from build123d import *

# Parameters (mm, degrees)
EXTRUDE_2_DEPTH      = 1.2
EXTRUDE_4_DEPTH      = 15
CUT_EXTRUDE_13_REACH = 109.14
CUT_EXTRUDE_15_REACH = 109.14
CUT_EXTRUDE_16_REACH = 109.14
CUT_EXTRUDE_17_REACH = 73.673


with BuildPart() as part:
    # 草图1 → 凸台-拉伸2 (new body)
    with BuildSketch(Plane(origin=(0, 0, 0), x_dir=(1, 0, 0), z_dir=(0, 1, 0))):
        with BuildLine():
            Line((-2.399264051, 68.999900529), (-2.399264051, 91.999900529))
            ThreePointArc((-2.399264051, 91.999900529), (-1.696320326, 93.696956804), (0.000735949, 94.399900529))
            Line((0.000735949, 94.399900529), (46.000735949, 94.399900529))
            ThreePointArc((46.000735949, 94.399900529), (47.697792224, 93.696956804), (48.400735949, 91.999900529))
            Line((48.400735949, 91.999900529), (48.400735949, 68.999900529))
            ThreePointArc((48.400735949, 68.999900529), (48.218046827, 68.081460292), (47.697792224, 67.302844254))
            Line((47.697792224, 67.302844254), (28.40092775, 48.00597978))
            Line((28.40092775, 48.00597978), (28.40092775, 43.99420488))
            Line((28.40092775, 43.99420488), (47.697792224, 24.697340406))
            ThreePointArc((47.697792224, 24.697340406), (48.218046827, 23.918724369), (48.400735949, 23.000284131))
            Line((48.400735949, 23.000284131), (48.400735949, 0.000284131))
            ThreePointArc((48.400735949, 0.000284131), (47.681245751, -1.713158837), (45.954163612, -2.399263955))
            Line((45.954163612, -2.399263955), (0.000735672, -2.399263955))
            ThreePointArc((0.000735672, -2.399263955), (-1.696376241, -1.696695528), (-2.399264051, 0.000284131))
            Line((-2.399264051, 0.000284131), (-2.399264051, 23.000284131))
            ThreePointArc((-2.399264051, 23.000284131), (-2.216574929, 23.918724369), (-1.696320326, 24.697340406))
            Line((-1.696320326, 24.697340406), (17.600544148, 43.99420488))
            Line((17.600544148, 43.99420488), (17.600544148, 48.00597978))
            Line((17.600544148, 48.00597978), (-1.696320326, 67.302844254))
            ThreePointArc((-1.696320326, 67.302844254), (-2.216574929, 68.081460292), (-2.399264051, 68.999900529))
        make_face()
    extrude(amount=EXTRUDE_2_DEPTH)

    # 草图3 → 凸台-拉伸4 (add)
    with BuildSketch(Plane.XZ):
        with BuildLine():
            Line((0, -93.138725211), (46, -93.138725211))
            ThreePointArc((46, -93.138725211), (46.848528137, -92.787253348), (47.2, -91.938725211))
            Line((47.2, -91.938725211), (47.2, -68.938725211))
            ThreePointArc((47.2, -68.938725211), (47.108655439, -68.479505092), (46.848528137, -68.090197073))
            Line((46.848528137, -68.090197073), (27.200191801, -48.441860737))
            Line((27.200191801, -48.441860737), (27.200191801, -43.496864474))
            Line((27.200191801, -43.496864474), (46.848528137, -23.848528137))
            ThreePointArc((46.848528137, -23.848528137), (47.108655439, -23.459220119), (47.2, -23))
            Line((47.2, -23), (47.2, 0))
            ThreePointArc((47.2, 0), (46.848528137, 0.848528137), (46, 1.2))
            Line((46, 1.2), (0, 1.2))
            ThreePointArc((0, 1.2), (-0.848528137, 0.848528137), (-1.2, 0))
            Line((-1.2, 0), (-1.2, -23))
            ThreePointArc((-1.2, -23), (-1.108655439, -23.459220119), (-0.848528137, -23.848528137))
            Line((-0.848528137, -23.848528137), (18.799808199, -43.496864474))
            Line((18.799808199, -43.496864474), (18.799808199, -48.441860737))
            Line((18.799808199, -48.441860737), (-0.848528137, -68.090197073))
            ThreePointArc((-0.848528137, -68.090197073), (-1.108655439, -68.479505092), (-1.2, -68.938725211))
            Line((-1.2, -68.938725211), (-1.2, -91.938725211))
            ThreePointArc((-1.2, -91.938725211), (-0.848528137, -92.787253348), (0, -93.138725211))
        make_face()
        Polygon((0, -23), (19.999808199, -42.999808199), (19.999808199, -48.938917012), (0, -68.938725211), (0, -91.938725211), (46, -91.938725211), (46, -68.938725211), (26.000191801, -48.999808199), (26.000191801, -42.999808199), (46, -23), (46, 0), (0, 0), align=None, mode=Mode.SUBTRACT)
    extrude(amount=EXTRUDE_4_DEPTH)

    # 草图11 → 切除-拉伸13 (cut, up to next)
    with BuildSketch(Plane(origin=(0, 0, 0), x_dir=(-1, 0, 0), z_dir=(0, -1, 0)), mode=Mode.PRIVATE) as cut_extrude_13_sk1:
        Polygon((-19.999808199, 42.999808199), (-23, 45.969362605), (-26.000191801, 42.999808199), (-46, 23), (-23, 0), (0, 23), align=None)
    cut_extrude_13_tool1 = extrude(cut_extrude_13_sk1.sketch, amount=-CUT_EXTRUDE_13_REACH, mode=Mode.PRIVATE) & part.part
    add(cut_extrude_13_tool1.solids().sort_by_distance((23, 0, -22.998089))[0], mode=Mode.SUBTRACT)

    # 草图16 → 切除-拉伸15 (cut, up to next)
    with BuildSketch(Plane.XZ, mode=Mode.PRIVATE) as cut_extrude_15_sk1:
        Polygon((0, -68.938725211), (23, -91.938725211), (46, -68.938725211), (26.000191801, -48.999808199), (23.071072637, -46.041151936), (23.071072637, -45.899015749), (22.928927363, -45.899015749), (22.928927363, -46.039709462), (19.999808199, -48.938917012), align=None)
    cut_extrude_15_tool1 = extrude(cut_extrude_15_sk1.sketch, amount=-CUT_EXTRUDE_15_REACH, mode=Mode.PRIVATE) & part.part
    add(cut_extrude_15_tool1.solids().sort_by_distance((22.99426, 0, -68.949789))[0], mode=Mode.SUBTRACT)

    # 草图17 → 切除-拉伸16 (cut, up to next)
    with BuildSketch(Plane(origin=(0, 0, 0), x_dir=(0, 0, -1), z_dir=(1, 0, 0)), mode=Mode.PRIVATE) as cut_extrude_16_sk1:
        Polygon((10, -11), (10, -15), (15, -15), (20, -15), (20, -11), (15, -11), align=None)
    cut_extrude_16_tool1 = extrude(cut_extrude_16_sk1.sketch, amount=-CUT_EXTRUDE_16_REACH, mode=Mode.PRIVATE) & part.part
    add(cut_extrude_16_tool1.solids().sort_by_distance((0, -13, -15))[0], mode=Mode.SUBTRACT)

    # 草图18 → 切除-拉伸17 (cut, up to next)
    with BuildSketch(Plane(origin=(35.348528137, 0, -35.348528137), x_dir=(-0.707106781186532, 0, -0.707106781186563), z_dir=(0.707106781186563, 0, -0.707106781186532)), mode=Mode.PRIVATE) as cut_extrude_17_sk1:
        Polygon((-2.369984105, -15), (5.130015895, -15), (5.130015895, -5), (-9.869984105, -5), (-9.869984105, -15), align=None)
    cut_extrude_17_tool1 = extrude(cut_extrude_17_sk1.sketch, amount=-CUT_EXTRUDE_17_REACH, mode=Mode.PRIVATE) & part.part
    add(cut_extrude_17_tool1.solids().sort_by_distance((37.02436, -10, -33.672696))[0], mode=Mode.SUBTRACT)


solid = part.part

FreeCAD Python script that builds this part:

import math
import FreeCAD as App
import Part
import Sketcher
from FreeCAD import Vector

doc = App.newDocument("Part")
params = doc.addObject("Spreadsheet::Sheet", "Params")
for row, (alias, value) in enumerate([
    ("sketch1_radius", "2.4 mm"),
    ("sketch1_width", "46 mm"),
    ("sketch1_height", "23 mm"),
    ("pad1_length", "1.2 mm"),
    ("sketch2_radius", "1.2 mm"),
    ("sketch2_width", "46 mm"),
    ("sketch2_height", "23 mm"),
    ("sketch2_height2", "6 mm"),
    ("pad2_length", "15 mm"),
    ("sketch5_width", "4 mm"),
    ("sketch5_height", "10 mm"),
    ("sketch6_width", "15 mm"),
    ("sketch6_height", "10 mm"),
], start=1):
    params.set(f"A{row}", alias)
    params.set(f"B{row}", "=" + value)
    params.setAlias(f"B{row}", alias)

body = doc.addObject("PartDesign::Body", "Body")

# Sketch on XZ plane
sketch1 = doc.addObject("Sketcher::SketchObject", "Sketch")
body.addObject(sketch1)
sketch1.AttachmentSupport = (doc.XZ_Plane, [""])
sketch1.MapMode = "FlatFace"
sketch1.addGeometry([
    Part.LineSegment(Vector(-2.4, -92, 0), Vector(-2.4, -69, 0)),  # 0
    Part.ArcOfCircle(Part.Circle(Vector(0, -69, 0), Vector(0, 0, 1), 2.4), math.radians(135), math.radians(180)),  # 1
    Part.LineSegment(Vector(-1.7, -67.3, 0), Vector(17.6, -48, 0)),  # 2
    Part.LineSegment(Vector(17.6, -48, 0), Vector(17.6, -44, 0)),  # 3
    Part.LineSegment(Vector(17.6, -44, 0), Vector(-1.7, -24.7, 0)),  # 4
    Part.ArcOfCircle(Part.Circle(Vector(0, -23, 0), Vector(0, 0, 1), 2.4), math.radians(180), math.radians(225)),  # 5
    Part.LineSegment(Vector(-2.4, -23, 0), Vector(-2.4, 0, 0)),  # 6
    Part.ArcOfCircle(Part.Circle(Vector(0, 0, 0), Vector(0, 0, 1), 2.4), math.radians(90), math.radians(180)),  # 7
    Part.LineSegment(Vector(0, 2.4, 0), Vector(46, 2.4, 0)),  # 8
    Part.ArcOfCircle(Part.Circle(Vector(46, 0, 0), Vector(0, 0, 1), 2.4), math.radians(0), math.radians(91)),  # 9
    Part.LineSegment(Vector(48.4, 0, 0), Vector(48.4, -23, 0)),  # 10
    Part.ArcOfCircle(Part.Circle(Vector(46, -23, 0), Vector(0, 0, 1), 2.4), math.radians(-45), math.radians(0)),  # 11
    Part.LineSegment(Vector(47.7, -24.7, 0), Vector(28.4, -44, 0)),  # 12
    Part.LineSegment(Vector(28.4, -44, 0), Vector(28.4, -48, 0)),  # 13
    Part.LineSegment(Vector(28.4, -48, 0), Vector(47.7, -67.3, 0)),  # 14
    Part.ArcOfCircle(Part.Circle(Vector(46, -69, 0), Vector(0, 0, 1), 2.4), math.radians(0), math.radians(45)),  # 15
    Part.LineSegment(Vector(48.4, -69, 0), Vector(48.4, -92, 0)),  # 16
    Part.ArcOfCircle(Part.Circle(Vector(46, -92, 0), Vector(0, 0, 1), 2.4), math.radians(-90), math.radians(0)),  # 17
    Part.LineSegment(Vector(46, -94.4, 0), Vector(0, -94.4, 0)),  # 18
    Part.ArcOfCircle(Part.Circle(Vector(0, -92, 0), Vector(0, 0, 1), 2.4), math.radians(180), math.radians(270)),  # 19
], False)
sketch1.addConstraint([
    Sketcher.Constraint("Tangent", 0, 2, 1, 2),
    Sketcher.Constraint("Tangent", 1, 1, 2, 1),
    Sketcher.Constraint("Coincident", 2, 2, 3, 1),
    Sketcher.Constraint("Coincident", 3, 2, 4, 1),
    Sketcher.Constraint("Tangent", 4, 2, 5, 2),
    Sketcher.Constraint("Tangent", 5, 1, 6, 1),
    Sketcher.Constraint("Coincident", 6, 2, 7, 2),
    Sketcher.Constraint("Coincident", 7, 1, 8, 1),
    Sketcher.Constraint("Coincident", 8, 2, 9, 2),
    Sketcher.Constraint("Tangent", 9, 1, 10, 1),
    Sketcher.Constraint("Tangent", 10, 2, 11, 2),
    Sketcher.Constraint("Tangent", 11, 1, 12, 1),
    Sketcher.Constraint("Coincident", 12, 2, 13, 1),
    Sketcher.Constraint("Coincident", 13, 2, 14, 1),
    Sketcher.Constraint("Tangent", 14, 2, 15, 2),
    Sketcher.Constraint("Tangent", 15, 1, 16, 1),
    Sketcher.Constraint("Tangent", 16, 2, 17, 2),
    Sketcher.Constraint("Tangent", 17, 1, 18, 1),
    Sketcher.Constraint("Tangent", 18, 2, 19, 2),
    Sketcher.Constraint("Tangent", 19, 1, 0, 1),
    Sketcher.Constraint("Vertical", 0),
    Sketcher.Constraint("Vertical", 3),
    Sketcher.Constraint("Vertical", 6),
    Sketcher.Constraint("Horizontal", 8),
    Sketcher.Constraint("Vertical", 10),
    Sketcher.Constraint("Vertical", 13),
    Sketcher.Constraint("Vertical", 16),
    Sketcher.Constraint("Horizontal", 18),
    Sketcher.Constraint("Coincident", 7, 3, -1, 1),
    Sketcher.Constraint("Equal", 1, 5),
    Sketcher.Constraint("Equal", 5, 9),
    Sketcher.Constraint("Equal", 9, 11),
    Sketcher.Constraint("Equal", 11, 15),
    Sketcher.Constraint("Equal", 15, 17),
    Sketcher.Constraint("Equal", 17, 19),
    Sketcher.Constraint("Perpendicular", 2, 4),
    Sketcher.Constraint("Perpendicular", 4, 12),
    Sketcher.Constraint("Perpendicular", 12, 14),
    Sketcher.Constraint("Horizontal", 5, 3, 11, 3),
    Sketcher.Constraint("Horizontal", 1, 3, 15, 3),
    Sketcher.Constraint("Horizontal", 9, 3, 6, 2),
    Sketcher.Constraint("Horizontal", 4, 2, 11, 1),
    Sketcher.Constraint("Horizontal", 3, 2, 12, 2),
    Sketcher.Constraint("Horizontal", 2, 2, 13, 2),
    Sketcher.Constraint("Vertical", 1, 3, 5, 3),
    Sketcher.Constraint("Vertical", 19, 3, 7, 1),
    Sketcher.Constraint("Equal", 0, 6),
    Sketcher.Constraint("Radius", 1, 2.4),
    Sketcher.Constraint("DistanceX", 18, 2, 18, 1, 46.0),
    Sketcher.Constraint("DistanceY", 0, 1, 0, 2, 23.0),
    Sketcher.Constraint("Radius", 7, 2.399264),
    Sketcher.Constraint("DistanceY", 1, 3, -1, 1, 68.999901),
    Sketcher.Constraint("DistanceX", 8, 1, 8, 2, 45.953428),
    Sketcher.Constraint("DistanceY", 3, 1, 3, 2, 4.011775),
])
sketch1.setExpression("Constraints[47]", "Params.sketch1_radius")
sketch1.setExpression("Constraints[48]", "Params.sketch1_width")
sketch1.setExpression("Constraints[49]", "Params.sketch1_height")
pad1 = doc.addObject("PartDesign::Pad", "Pad")
body.addObject(pad1)
pad1.Profile = sketch1
pad1.setExpression("Length", "Params.pad1_length")
pad1.Reversed = True

# Sketch on XZ plane
sketch2 = doc.addObject("Sketcher::SketchObject", "Sketch001")
body.addObject(sketch2)
sketch2.AttachmentSupport = (doc.XZ_Plane, [""])
sketch2.MapMode = "FlatFace"
sketch2.addGeometry([
    Part.LineSegment(Vector(0, -93.1, 0), Vector(46, -93.1, 0)),  # 0
    Part.ArcOfCircle(Part.Circle(Vector(46, -91.9, 0), Vector(0, 0, 1), 1.2), math.radians(-90), math.radians(0)),  # 1
    Part.LineSegment(Vector(47.2, -91.9, 0), Vector(47.2, -68.9, 0)),  # 2
    Part.ArcOfCircle(Part.Circle(Vector(46, -68.9, 0), Vector(0, 0, 1), 1.2), math.radians(0), math.radians(45)),  # 3
    Part.LineSegment(Vector(46.8, -68.1, 0), Vector(27.2, -48.4, 0)),  # 4
    Part.LineSegment(Vector(27.2, -48.4, 0), Vector(27.2, -43.5, 0)),  # 5
    Part.LineSegment(Vector(27.2, -43.5, 0), Vector(46.8, -23.8, 0)),  # 6
    Part.ArcOfCircle(Part.Circle(Vector(46, -23, 0), Vector(0, 0, 1), 1.2), math.radians(-45), math.radians(0)),  # 7
    Part.LineSegment(Vector(47.2, -23, 0), Vector(47.2, 0, 0)),  # 8
    Part.ArcOfCircle(Part.Circle(Vector(46, 0, 0), Vector(0, 0, 1), 1.2), math.radians(0), math.radians(90)),  # 9
    Part.LineSegment(Vector(46, 1.2, 0), Vector(0, 1.2, 0)),  # 10
    Part.ArcOfCircle(Part.Circle(Vector(0, 0, 0), Vector(0, 0, 1), 1.2), math.radians(90), math.radians(180)),  # 11
    Part.LineSegment(Vector(-1.2, 0, 0), Vector(-1.2, -23, 0)),  # 12
    Part.ArcOfCircle(Part.Circle(Vector(0, -23, 0), Vector(0, 0, 1), 1.2), math.radians(180), math.radians(225)),  # 13
    Part.LineSegment(Vector(-0.8, -23.8, 0), Vector(18.8, -43.5, 0)),  # 14
    Part.LineSegment(Vector(18.8, -43.5, 0), Vector(18.8, -48.4, 0)),  # 15
    Part.LineSegment(Vector(18.8, -48.4, 0), Vector(-0.8, -68.1, 0)),  # 16
    Part.ArcOfCircle(Part.Circle(Vector(0, -68.9, 0), Vector(0, 0, 1), 1.2), math.radians(135), math.radians(180)),  # 17
    Part.LineSegment(Vector(-1.2, -68.9, 0), Vector(-1.2, -91.9, 0)),  # 18
    Part.ArcOfCircle(Part.Circle(Vector(0, -91.9, 0), Vector(0, 0, 1), 1.2), math.radians(-180), math.radians(-90)),  # 19
    Part.LineSegment(Vector(20, -43, 0), Vector(0, -23, 0)),  # 20
    Part.LineSegment(Vector(0, -23, 0), Vector(0, 0, 0)),  # 21
    Part.LineSegment(Vector(0, 0, 0), Vector(46, 0, 0)),  # 22
    Part.LineSegment(Vector(46, 0, 0), Vector(46, -23, 0)),  # 23
    Part.LineSegment(Vector(46, -23, 0), Vector(26, -43, 0)),  # 24
    Part.LineSegment(Vector(26, -43, 0), Vector(26, -49, 0)),  # 25
    Part.LineSegment(Vector(26, -49, 0), Vector(46, -68.9, 0)),  # 26
    Part.LineSegment(Vector(46, -68.9, 0), Vector(46, -91.9, 0)),  # 27
    Part.LineSegment(Vector(46, -91.9, 0), Vector(0, -91.9, 0)),  # 28
    Part.LineSegment(Vector(0, -91.9, 0), Vector(0, -68.9, 0)),  # 29
    Part.LineSegment(Vector(0, -68.9, 0), Vector(20, -48.9, 0)),  # 30
    Part.LineSegment(Vector(20, -48.9, 0), Vector(20, -43, 0)),  # 31
], False)
sketch2.addConstraint([
    Sketcher.Constraint("Tangent", 0, 2, 1, 1),
    Sketcher.Constraint("Tangent", 1, 2, 2, 1),
    Sketcher.Constraint("Tangent", 2, 2, 3, 1),
    Sketcher.Constraint("Tangent", 3, 2, 4, 1),
    Sketcher.Constraint("Coincident", 4, 2, 5, 1),
    Sketcher.Constraint("Coincident", 5, 2, 6, 1),
    Sketcher.Constraint("Tangent", 6, 2, 7, 1),
    Sketcher.Constraint("Tangent", 7, 2, 8, 1),
    Sketcher.Constraint("Tangent", 8, 2, 9, 1),
    Sketcher.Constraint("Tangent", 9, 2, 10, 1),
    Sketcher.Constraint("Tangent", 10, 2, 11, 1),
    Sketcher.Constraint("Tangent", 11, 2, 12, 1),
    Sketcher.Constraint("Tangent", 12, 2, 13, 1),
    Sketcher.Constraint("Tangent", 13, 2, 14, 1),
    Sketcher.Constraint("Coincident", 14, 2, 15, 1),
    Sketcher.Constraint("Coincident", 15, 2, 16, 1),
    Sketcher.Constraint("Tangent", 16, 2, 17, 1),
    Sketcher.Constraint("Tangent", 17, 2, 18, 1),
    Sketcher.Constraint("Tangent", 18, 2, 19, 1),
    Sketcher.Constraint("Tangent", 19, 2, 0, 1),
    Sketcher.Constraint("Coincident", 20, 2, 21, 1),
    Sketcher.Constraint("Coincident", 21, 2, 22, 1),
    Sketcher.Constraint("Coincident", 22, 2, 23, 1),
    Sketcher.Constraint("Coincident", 23, 2, 24, 1),
    Sketcher.Constraint("Coincident", 24, 2, 25, 1),
    Sketcher.Constraint("Coincident", 25, 2, 26, 1),
    Sketcher.Constraint("Coincident", 26, 2, 27, 1),
    Sketcher.Constraint("Coincident", 27, 2, 28, 1),
    Sketcher.Constraint("Coincident", 28, 2, 29, 1),
    Sketcher.Constraint("Coincident", 29, 2, 30, 1),
    Sketcher.Constraint("Coincident", 30, 2, 31, 1),
    Sketcher.Constraint("Coincident", 31, 2, 20, 1),
    Sketcher.Constraint("Horizontal", 0),
    Sketcher.Constraint("Vertical", 2),
    Sketcher.Constraint("Vertical", 5),
    Sketcher.Constraint("Vertical", 8),
    Sketcher.Constraint("Horizontal", 10),
    Sketcher.Constraint("Vertical", 12),
    Sketcher.Constraint("Vertical", 15),
    Sketcher.Constraint("Vertical", 18),
    Sketcher.Constraint("Vertical", 21),
    Sketcher.Constraint("Horizontal", 22),
    Sketcher.Constraint("Vertical", 23),
    Sketcher.Constraint("Vertical", 25),
    Sketcher.Constraint("Vertical", 27),
    Sketcher.Constraint("Horizontal", 28),
    Sketcher.Constraint("Vertical", 29),
    Sketcher.Constraint("Vertical", 31),
    Sketcher.Constraint("Coincident", 11, 3, -1, 1),
    Sketcher.Constraint("Coincident", 21, 2, -1, 1),
    Sketcher.Constraint("Coincident", 20, 2, 13, 3),
    Sketcher.Constraint("Coincident", 22, 2, 9, 3),
    Sketcher.Constraint("Coincident", 23, 2, 7, 3),
    Sketcher.Constraint("Coincident", 26, 2, 3, 3),
    Sketcher.Constraint("Coincident", 27, 2, 1, 3),
    Sketcher.Constraint("Coincident", 28, 2, 19, 3),
    Sketcher.Constraint("Coincident", 29, 2, 17, 3),
    Sketcher.Constraint("Equal", 3, 7),
    Sketcher.Constraint("PointOnObject", 17, 3, -2),
    Sketcher.Constraint("Perpendicular", 4, 6),
    Sketcher.Constraint("Perpendicular", 6, 14),
    Sketcher.Constraint("Perpendicular", 14, 16),
    Sketcher.Constraint("Perpendicular", 16, 20),
    Sketcher.Constraint("Perpendicular", 20, 24),
    Sketcher.Constraint("Parallel", 24, 30),
    Sketcher.Constraint("Horizontal", 7, 3, 13, 3),
    Sketcher.Constraint("Horizontal", 3, 3, 17, 3),
    Sketcher.Constraint("Horizontal", 6, 2, 13, 2),
    Sketcher.Constraint("Horizontal", 5, 2, 14, 2),
    Sketcher.Constraint("Horizontal", 4, 2, 15, 2),
    Sketcher.Constraint("Horizontal", 24, 2, 31, 2),
    Sketcher.Constraint("Equal", 2, 8),
    Sketcher.Constraint("Radius", 1, 1.2),
    Sketcher.Constraint("DistanceX", 0, 1, 0, 2, 46.0),
    Sketcher.Constraint("DistanceY", 2, 1, 2, 2, 23.0),
    Sketcher.Constraint("DistanceY", 25, 2, 25, 1, 6.0),
    Sketcher.Constraint("DistanceX", 24, 2, 5, 2, 1.2),
    Sketcher.Constraint("Distance", 20, 28.284),
    Sketcher.Constraint("DistanceY", 31, 1, 31, 2, 5.939109),
])
sketch2.setExpression("Constraints[72]", "Params.sketch2_radius")
sketch2.setExpression("Constraints[73]", "Params.sketch2_width")
sketch2.setExpression("Constraints[74]", "Params.sketch2_height")
sketch2.setExpression("Constraints[75]", "Params.sketch2_height2")
pad2 = doc.addObject("PartDesign::Pad", "Pad001")
body.addObject(pad2)
pad2.Profile = sketch2
pad2.setExpression("Length", "Params.pad2_length")

# Sketch on XZ plane
sketch3 = doc.addObject("Sketcher::SketchObject", "Sketch002")
body.addObject(sketch3)
sketch3.AttachmentSupport = (doc.XZ_Plane, [""])
sketch3.MapMode = "FlatFace"
sketch3.addGeometry([
    Part.LineSegment(Vector(20, -43, 0), Vector(23, -46, 0)),  # 0
    Part.LineSegment(Vector(23, -46, 0), Vector(26, -43, 0)),  # 1
    Part.LineSegment(Vector(26, -43, 0), Vector(46, -23, 0)),  # 2
    Part.LineSegment(Vector(46, -23, 0), Vector(23, 0, 0)),  # 3
    Part.LineSegment(Vector(23, 0, 0), Vector(0, -23, 0)),  # 4
    Part.LineSegment(Vector(0, -23, 0), Vector(20, -43, 0)),  # 5
], False)
sketch3.addConstraint([
    Sketcher.Constraint("Coincident", 0, 2, 1, 1),
    Sketcher.Constraint("Coincident", 1, 2, 2, 1),
    Sketcher.Constraint("Coincident", 2, 2, 3, 1),
    Sketcher.Constraint("Coincident", 3, 2, 4, 1),
    Sketcher.Constraint("Coincident", 4, 2, 5, 1),
    Sketcher.Constraint("Coincident", 5, 2, 0, 1),
    Sketcher.Constraint("PointOnObject", 3, 2, -1),
    Sketcher.Constraint("PointOnObject", 4, 2, -2),
    Sketcher.Constraint("Perpendicular", 2, 3),
    Sketcher.Constraint("Perpendicular", 3, 4),
    Sketcher.Constraint("Perpendicular", 4, 5),
    Sketcher.Constraint("Horizontal", 2, 2, 4, 2),
    Sketcher.Constraint("Horizontal", 1, 2, 5, 2),
    Sketcher.Constraint("Vertical", 0, 2, 3, 2),
    Sketcher.Constraint("Equal", 0, 1),
    Sketcher.Constraint("DistanceX", -1, 1, 0, 2, 23.0),
    Sketcher.Constraint("Distance", 2, 28.284),
    Sketcher.Constraint("Distance", 0, 4.221304),
])
pocket1 = doc.addObject("PartDesign::Pocket", "Pocket")
body.addObject(pocket1)
pocket1.Profile = sketch3
pocket1.Type = "UpToFirst"

# Sketch on XZ plane
sketch4 = doc.addObject("Sketcher::SketchObject", "Sketch003")
body.addObject(sketch4)
sketch4.AttachmentSupport = (doc.XZ_Plane, [""])
sketch4.MapMode = "FlatFace"
sketch4.addGeometry([
    Part.LineSegment(Vector(0, -68.94, 0), Vector(23, -91.94, 0)),  # 0
    Part.LineSegment(Vector(23, -91.94, 0), Vector(46, -68.94, 0)),  # 1
    Part.LineSegment(Vector(46, -68.94, 0), Vector(26, -49, 0)),  # 2
    Part.LineSegment(Vector(26, -49, 0), Vector(23.07, -46.04, 0)),  # 3
    Part.LineSegment(Vector(23.07, -46.04, 0), Vector(23.07, -45.9, 0)),  # 4
    Part.LineSegment(Vector(23.07, -45.9, 0), Vector(22.93, -45.9, 0)),  # 5
    Part.LineSegment(Vector(22.93, -45.9, 0), Vector(22.93, -46.04, 0)),  # 6
    Part.LineSegment(Vector(22.93, -46.04, 0), Vector(20, -48.94, 0)),  # 7
    Part.LineSegment(Vector(20, -48.94, 0), Vector(0, -68.94, 0)),  # 8
], False)
sketch4.addConstraint([
    Sketcher.Constraint("Coincident", 0, 2, 1, 1),
    Sketcher.Constraint("Coincident", 1, 2, 2, 1),
    Sketcher.Constraint("Coincident", 2, 2, 3, 1),
    Sketcher.Constraint("Coincident", 3, 2, 4, 1),
    Sketcher.Constraint("Coincident", 4, 2, 5, 1),
    Sketcher.Constraint("Coincident", 5, 2, 6, 1),
    Sketcher.Constraint("Coincident", 6, 2, 7, 1),
    Sketcher.Constraint("Coincident", 7, 2, 8, 1),
    Sketcher.Constraint("Coincident", 8, 2, 0, 1),
    Sketcher.Constraint("Vertical", 4),
    Sketcher.Constraint("Horizontal", 5),
    Sketcher.Constraint("Vertical", 6),
    Sketcher.Constraint("PointOnObject", 8, 2, -2),
    Sketcher.Constraint("Perpendicular", 0, 1),
    Sketcher.Constraint("Parallel", 1, 8),
    Sketcher.Constraint("Horizontal", 1, 2, 8, 2),
    Sketcher.Constraint("Equal", 0, 1),
    Sketcher.Constraint("DistanceX", -1, 1, 0, 2, 23.0),
    Sketcher.Constraint("Distance", 8, 28.284),
    Sketcher.Constraint("DistanceY", 2, 2, 6, 2, 2.960099),
    Sketcher.Constraint("DistanceY", 7, 2, 5, 2, 3.039901),
    Sketcher.Constraint("Distance", 3, 4.163338),
    Sketcher.Constraint("DistanceX", 5, 2, 5, 1, 0.142145),
    Sketcher.Constraint("DistanceY", 4, 1, 4, 2, 0.142136),
    Sketcher.Constraint("DistanceY", 6, 2, 6, 1, 0.140694),
    Sketcher.Constraint("DistanceX", -1, 1, 2, 2, 26.000192),
    Sketcher.Constraint("DistanceY", 2, 2, -1, 1, 48.999808),
])
pocket2 = doc.addObject("PartDesign::Pocket", "Pocket001")
body.addObject(pocket2)
pocket2.Profile = sketch4
pocket2.Type = "UpToFirst"

# Sketch on YZ plane
sketch5 = doc.addObject("Sketcher::SketchObject", "Sketch004")
body.addObject(sketch5)
sketch5.AttachmentSupport = (doc.YZ_Plane, [""])
sketch5.MapMode = "FlatFace"
sketch5.addGeometry([
    Part.LineSegment(Vector(-11, -10, 0), Vector(-15, -10, 0)),
    Part.LineSegment(Vector(-15, -10, 0), Vector(-15, -20, 0)),
    Part.LineSegment(Vector(-15, -20, 0), Vector(-11, -20, 0)),
    Part.LineSegment(Vector(-11, -20, 0), Vector(-11, -10, 0)),
], False)
sketch5.addConstraint([
    Sketcher.Constraint("Coincident", 0, 2, 1, 1),
    Sketcher.Constraint("Coincident", 1, 2, 2, 1),
    Sketcher.Constraint("Coincident", 2, 2, 3, 1),
    Sketcher.Constraint("Coincident", 3, 2, 0, 1),
    Sketcher.Constraint("Horizontal", 0),
    Sketcher.Constraint("Vertical", 1),
    Sketcher.Constraint("Horizontal", 2),
    Sketcher.Constraint("Vertical", 3),
    Sketcher.Constraint("DistanceX", 0, 2, 0, 1, 4.0),
    Sketcher.Constraint("DistanceY", 1, 2, 1, 1, 10.0),
    Sketcher.Constraint("DistanceX", 0, 2, -1, 1, 15.0),
    Sketcher.Constraint("DistanceY", 0, 2, -1, 1, 10.0),
])
sketch5.setExpression("Constraints[8]", "Params.sketch5_width")
sketch5.setExpression("Constraints[9]", "Params.sketch5_height")
pocket3 = doc.addObject("PartDesign::Pocket", "Pocket002")
body.addObject(pocket3)
pocket3.Profile = sketch5
pocket3.Type = "UpToFirst"

# Sketch on an angled plane
sketch6 = doc.addObject("Sketcher::SketchObject", "Sketch005")
body.addObject(sketch6)
sketch6.Placement = App.Placement(Vector(35.348528, 0, -35.348528), App.Rotation(Vector(-0.707106781, 0, -0.707106781), Vector(0, 0.999999999, 0), Vector(0.707106781, 0, -0.707106781), "ZXY"))
sketch6.addGeometry([
    Part.LineSegment(Vector(5, -15, 0), Vector(5, -5, 0)),
    Part.LineSegment(Vector(5, -5, 0), Vector(-10, -5, 0)),
    Part.LineSegment(Vector(-10, -5, 0), Vector(-10, -15, 0)),
    Part.LineSegment(Vector(-10, -15, 0), Vector(5, -15, 0)),
], False)
sketch6.addConstraint([
    Sketcher.Constraint("Coincident", 0, 2, 1, 1),
    Sketcher.Constraint("Coincident", 1, 2, 2, 1),
    Sketcher.Constraint("Coincident", 2, 2, 3, 1),
    Sketcher.Constraint("Coincident", 3, 2, 0, 1),
    Sketcher.Constraint("Vertical", 0),
    Sketcher.Constraint("Horizontal", 1),
    Sketcher.Constraint("Vertical", 2),
    Sketcher.Constraint("Horizontal", 3),
    Sketcher.Constraint("DistanceX", 1, 2, 1, 1, 15.0),
    Sketcher.Constraint("DistanceY", 0, 1, 0, 2, 10.0),
    Sketcher.Constraint("DistanceY", 0, 2, -1, 1, 5.0),
    Sketcher.Constraint("DistanceX", -1, 1, 0, 2, 5.130016),
])
sketch6.setExpression("Constraints[8]", "Params.sketch6_width")
sketch6.setExpression("Constraints[9]", "Params.sketch6_height")
pocket4 = doc.addObject("PartDesign::Pocket", "Pocket003")
body.addObject(pocket4)
pocket4.Profile = sketch6
pocket4.Type = "UpToFirst"

doc.recompute()
